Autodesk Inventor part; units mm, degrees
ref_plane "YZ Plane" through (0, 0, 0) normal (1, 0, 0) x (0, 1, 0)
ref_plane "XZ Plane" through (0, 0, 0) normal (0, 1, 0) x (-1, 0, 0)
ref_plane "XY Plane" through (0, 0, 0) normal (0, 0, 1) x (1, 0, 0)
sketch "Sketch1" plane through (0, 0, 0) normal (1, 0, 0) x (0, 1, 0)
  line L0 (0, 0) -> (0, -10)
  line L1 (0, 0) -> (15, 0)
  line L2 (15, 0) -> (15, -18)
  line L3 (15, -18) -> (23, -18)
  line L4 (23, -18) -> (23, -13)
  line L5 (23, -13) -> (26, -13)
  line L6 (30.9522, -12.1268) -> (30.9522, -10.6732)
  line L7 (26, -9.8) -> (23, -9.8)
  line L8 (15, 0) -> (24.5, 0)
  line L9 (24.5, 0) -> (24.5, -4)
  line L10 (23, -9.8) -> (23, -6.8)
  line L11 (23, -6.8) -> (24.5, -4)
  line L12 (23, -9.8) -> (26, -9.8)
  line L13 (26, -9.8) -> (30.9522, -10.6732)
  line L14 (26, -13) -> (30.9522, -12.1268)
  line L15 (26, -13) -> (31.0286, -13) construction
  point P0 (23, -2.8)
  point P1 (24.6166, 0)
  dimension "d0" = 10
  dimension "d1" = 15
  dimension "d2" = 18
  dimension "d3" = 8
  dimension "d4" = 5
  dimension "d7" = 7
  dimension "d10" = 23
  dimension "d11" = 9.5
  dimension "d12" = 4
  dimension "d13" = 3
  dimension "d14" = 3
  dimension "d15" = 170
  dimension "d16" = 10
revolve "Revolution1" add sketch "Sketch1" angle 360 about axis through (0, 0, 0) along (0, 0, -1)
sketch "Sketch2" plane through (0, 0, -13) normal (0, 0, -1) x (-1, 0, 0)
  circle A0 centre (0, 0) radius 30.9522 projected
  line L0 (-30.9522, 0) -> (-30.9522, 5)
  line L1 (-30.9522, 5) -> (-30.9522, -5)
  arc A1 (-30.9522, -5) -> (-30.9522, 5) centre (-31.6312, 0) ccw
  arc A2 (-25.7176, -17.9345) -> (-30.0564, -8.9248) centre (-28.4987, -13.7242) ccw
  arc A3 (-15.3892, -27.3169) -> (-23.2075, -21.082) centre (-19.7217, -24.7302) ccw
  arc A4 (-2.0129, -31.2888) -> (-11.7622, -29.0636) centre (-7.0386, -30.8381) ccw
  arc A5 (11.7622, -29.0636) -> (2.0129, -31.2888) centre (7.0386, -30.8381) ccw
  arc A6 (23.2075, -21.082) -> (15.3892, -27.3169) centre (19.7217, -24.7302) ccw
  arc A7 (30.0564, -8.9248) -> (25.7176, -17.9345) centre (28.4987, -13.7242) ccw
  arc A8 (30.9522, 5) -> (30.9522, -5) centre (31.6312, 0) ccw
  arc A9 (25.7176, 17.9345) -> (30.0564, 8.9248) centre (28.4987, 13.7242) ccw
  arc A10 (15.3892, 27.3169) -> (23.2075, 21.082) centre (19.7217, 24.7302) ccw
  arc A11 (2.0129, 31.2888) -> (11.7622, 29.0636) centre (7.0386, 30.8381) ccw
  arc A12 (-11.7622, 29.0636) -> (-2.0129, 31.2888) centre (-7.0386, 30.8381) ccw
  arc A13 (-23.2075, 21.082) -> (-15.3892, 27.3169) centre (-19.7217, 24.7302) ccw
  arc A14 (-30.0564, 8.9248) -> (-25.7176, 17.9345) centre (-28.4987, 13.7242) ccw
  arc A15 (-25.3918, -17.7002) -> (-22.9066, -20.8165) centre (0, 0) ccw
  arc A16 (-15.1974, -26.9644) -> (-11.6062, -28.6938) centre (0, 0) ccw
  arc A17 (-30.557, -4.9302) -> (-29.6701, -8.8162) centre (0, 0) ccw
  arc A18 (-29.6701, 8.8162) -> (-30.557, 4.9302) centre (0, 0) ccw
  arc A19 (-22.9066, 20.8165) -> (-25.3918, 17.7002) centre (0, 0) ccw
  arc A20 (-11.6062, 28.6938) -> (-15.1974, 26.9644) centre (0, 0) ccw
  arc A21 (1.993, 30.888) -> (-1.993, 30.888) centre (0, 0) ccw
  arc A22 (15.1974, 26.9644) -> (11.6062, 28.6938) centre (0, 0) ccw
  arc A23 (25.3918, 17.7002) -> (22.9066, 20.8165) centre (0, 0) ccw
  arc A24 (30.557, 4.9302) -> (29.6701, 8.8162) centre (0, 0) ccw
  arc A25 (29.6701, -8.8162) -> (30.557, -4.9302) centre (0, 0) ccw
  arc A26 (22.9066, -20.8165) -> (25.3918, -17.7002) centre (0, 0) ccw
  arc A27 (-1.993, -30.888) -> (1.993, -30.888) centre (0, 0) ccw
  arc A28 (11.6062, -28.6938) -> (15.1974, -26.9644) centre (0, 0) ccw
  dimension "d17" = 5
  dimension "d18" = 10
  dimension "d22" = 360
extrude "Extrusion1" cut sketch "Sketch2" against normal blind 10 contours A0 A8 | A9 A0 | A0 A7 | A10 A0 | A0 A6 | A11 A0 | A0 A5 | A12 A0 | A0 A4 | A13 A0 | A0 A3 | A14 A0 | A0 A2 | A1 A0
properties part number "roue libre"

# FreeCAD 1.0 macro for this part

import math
import FreeCAD as App
import Part
import Sketcher
from FreeCAD import Vector
Q = App.Units.Quantity


def add_polygon(sketch, points):
    """Adds a closed chain of lines whose ends are joined by coincident constraints."""
    first, n = sketch.GeometryCount, len(points)
    for a, b in zip(points, points[1:] + points[:1]):
        sketch.addGeometry(Part.LineSegment(App.Vector(*a, 0), App.Vector(*b, 0)), False)
    for i in range(n):
        sketch.addConstraint(Sketcher.Constraint("Coincident", first + i, 2, first + (i + 1) % n, 1))

doc = App.newDocument("Part")
body = doc.addObject("PartDesign::Body", "Body")

sketch1 = body.newObject("Sketcher::SketchObject", "Sketch")
sketch1.AttachmentSupport = (doc.getObject("YZ_Plane"), [""])
sketch1.MapMode = "FlatFace"
add_polygon(sketch1, [(24.5, 0), (15, 0), (15, -18), (23, -18), (23, -13), (26, -13), (31, -12.1), (31, -10.7), (26, -9.8), (23, -9.8), (23, -6.8), (24.5, -4)])
sketch1.addConstraint([
    Sketcher.Constraint("Horizontal", 0),
    Sketcher.Constraint("Vertical", 1),
    Sketcher.Constraint("Horizontal", 2),
    Sketcher.Constraint("Vertical", 3),
    Sketcher.Constraint("Horizontal", 4),
    Sketcher.Constraint("Vertical", 6),
    Sketcher.Constraint("Horizontal", 8),
    Sketcher.Constraint("Vertical", 9),
    Sketcher.Constraint("Vertical", 11),
    Sketcher.Constraint("PointOnObject", 0, 2, -1),
    Sketcher.Constraint("Vertical", 4, 2, 7, 2),
    Sketcher.Constraint("Vertical", 3, 2, 8, 2),
    Sketcher.Constraint("Equal", 8, 9),
    Sketcher.Constraint("Equal", 5, 7),
    Sketcher.Constraint("DistanceX", 2, 1, 2, 2, 8.0),
    Sketcher.Constraint("DistanceX", 4, 1, 4, 2, 3.0),
    Sketcher.Constraint("DistanceY", 1, 2, 1, 1, 18.0),
    Sketcher.Constraint("DistanceY", 3, 1, 3, 2, 5.0),
    Sketcher.Constraint("DistanceY", 11, 1, 11, 2, 4.0),
    Sketcher.Constraint("Angle", 5, Q("10 deg")),
    Sketcher.Constraint("DistanceX", 0, 2, 0, 1, 9.5),
    Sketcher.Constraint("DistanceX", -1, 1, 0, 2, 15.0),
    Sketcher.Constraint("DistanceY", 7, 2, -1, 1, 9.8),
    Sketcher.Constraint("DistanceY", 6, 1, 6, 2, 1.4536),
])
revolution = body.newObject("PartDesign::Revolution", "Revolution")
revolution.Profile = sketch1
revolution.ReferenceAxis = (sketch1, ["V_Axis"])
revolution.Angle = 360

sketch2 = body.newObject("Sketcher::SketchObject", "Sketch001")
sketch2.AttachmentSupport = (doc.getObject("XY_Plane"), [""])
sketch2.MapMode = "FlatFace"
sketch2.AttachmentOffset = App.Placement(Vector(0, 0, -13), App.Rotation())
sketch2.addGeometry([
    Part.ArcOfCircle(Part.Circle(Vector(0, 0, 0), Vector(0, 0, 1), 31), math.radians(170.83), math.radians(189.17)),
    Part.ArcOfCircle(Part.Circle(Vector(-32, 0, 0), Vector(0, 0, 1), 5), math.radians(-78), math.radians(78)),
    Part.ArcOfCircle(Part.Circle(Vector(-28, 14, 0), Vector(0, 0, 1), 5), math.radians(-103), math.radians(52)),
    Part.ArcOfCircle(Part.Circle(Vector(0, 0, 0), Vector(0, 0, 1), 31), math.radians(145.12), math.radians(163.45)),
    Part.ArcOfCircle(Part.Circle(Vector(0, 0, 0), Vector(0, 0, 1), 31), math.radians(-163.45), math.radians(-145.12)),
    Part.ArcOfCircle(Part.Circle(Vector(-28, -14, 0), Vector(0, 0, 1), 5), math.radians(-52), math.radians(103)),
    Part.ArcOfCircle(Part.Circle(Vector(-20, 25, 0), Vector(0, 0, 1), 5), math.radians(-129), math.radians(26)),
    Part.ArcOfCircle(Part.Circle(Vector(0, 0, 0), Vector(0, 0, 1), 31), math.radians(119.41), math.radians(137.74)),
    Part.ArcOfCircle(Part.Circle(Vector(0, 0, 0), Vector(0, 0, 1), 31), math.radians(-137.74), math.radians(-119.41)),
    Part.ArcOfCircle(Part.Circle(Vector(-20, -25, 0), Vector(0, 0, 1), 5), math.radians(-26), math.radians(129)),
    Part.ArcOfCircle(Part.Circle(Vector(-7, 31, 0), Vector(0, 0, 1), 5), math.radians(-155), math.radians(1)),
    Part.ArcOfCircle(Part.Circle(Vector(0, 0, 0), Vector(0, 0, 1), 31), math.radians(93.69), math.radians(112.02)),
    Part.ArcOfCircle(Part.Circle(Vector(0, 0, 0), Vector(0, 0, 1), 31), math.radians(-112.02), math.radians(-93.69)),
    Part.ArcOfCircle(Part.Circle(Vector(-7, -31, 0), Vector(0, 0, 1), 5), math.radians(-1), math.radians(155)),
    Part.ArcOfCircle(Part.Circle(Vector(7, 31, 0), Vector(0, 0, 1), 5), math.radians(179), math.radians(335)),
    Part.ArcOfCircle(Part.Circle(Vector(0, 0, 0), Vector(0, 0, 1), 31), math.radians(67.98), math.radians(86.31)),
    Part.ArcOfCircle(Part.Circle(Vector(0, 0, 0), Vector(0, 0, 1), 31), math.radians(-86.31), math.radians(-67.98)),
    Part.ArcOfCircle(Part.Circle(Vector(7, -31, 0), Vector(0, 0, 1), 5), math.radians(25), math.radians(181)),
    Part.ArcOfCircle(Part.Circle(Vector(20, 25, 0), Vector(0, 0, 1), 5), math.radians(154), math.radians(309)),
    Part.ArcOfCircle(Part.Circle(Vector(0, 0, 0), Vector(0, 0, 1), 31), math.radians(42.26), math.radians(60.59)),
    Part.ArcOfCircle(Part.Circle(Vector(0, 0, 0), Vector(0, 0, 1), 31), math.radians(-60.59), math.radians(-42.26)),
    Part.ArcOfCircle(Part.Circle(Vector(20, -25, 0), Vector(0, 0, 1), 5), math.radians(51), math.radians(206)),
    Part.ArcOfCircle(Part.Circle(Vector(28, 14, 0), Vector(0, 0, 1), 5), math.radians(128), math.radians(283)),
    Part.ArcOfCircle(Part.Circle(Vector(0, 0, 0), Vector(0, 0, 1), 31), math.radians(16.55), math.radians(34.88)),
    Part.ArcOfCircle(Part.Circle(Vector(0, 0, 0), Vector(0, 0, 1), 31), math.radians(-34.88), math.radians(-16.55)),
    Part.ArcOfCircle(Part.Circle(Vector(28, -14, 0), Vector(0, 0, 1), 5), math.radians(77), math.radians(232)),
    Part.ArcOfCircle(Part.Circle(Vector(32, 0, 0), Vector(0, 0, 1), 5), math.radians(102), math.radians(258)),
    Part.ArcOfCircle(Part.Circle(Vector(0, 0, 0), Vector(0, 0, 1), 31), math.radians(-9.17), math.radians(9.17)),
], False)
sketch2.addConstraint([
    Sketcher.Constraint("Coincident", 0, 1, 1, 2),
    Sketcher.Constraint("Coincident", 1, 1, 0, 2),
    Sketcher.Constraint("Coincident", 2, 1, 3, 2),
    Sketcher.Constraint("Coincident", 3, 1, 2, 2),
    Sketcher.Constraint("Coincident", 4, 1, 5, 2),
    Sketcher.Constraint("Coincident", 5, 1, 4, 2),
    Sketcher.Constraint("Coincident", 6, 1, 7, 2),
    Sketcher.Constraint("Coincident", 7, 1, 6, 2),
    Sketcher.Constraint("Coincident", 8, 1, 9, 2),
    Sketcher.Constraint("Coincident", 9, 1, 8, 2),
    Sketcher.Constraint("Coincident", 10, 1, 11, 2),
    Sketcher.Constraint("Coincident", 11, 1, 10, 2),
    Sketcher.Constraint("Coincident", 12, 1, 13, 2),
    Sketcher.Constraint("Coincident", 13, 1, 12, 2),
    Sketcher.Constraint("Coincident", 14, 1, 15, 2),
    Sketcher.Constraint("Coincident", 15, 1, 14, 2),
    Sketcher.Constraint("Coincident", 16, 1, 17, 2),
    Sketcher.Constraint("Coincident", 17, 1, 16, 2),
    Sketcher.Constraint("Coincident", 18, 1, 19, 2),
    Sketcher.Constraint("Coincident", 19, 1, 18, 2),
    Sketcher.Constraint("Coincident", 20, 1, 21, 2),
    Sketcher.Constraint("Coincident", 21, 1, 20, 2),
    Sketcher.Constraint("Coincident", 22, 1, 23, 2),
    Sketcher.Constraint("Coincident", 23, 1, 22, 2),
    Sketcher.Constraint("Coincident", 24, 1, 25, 2),
    Sketcher.Constraint("Coincident", 25, 1, 24, 2),
    Sketcher.Constraint("Coincident", 26, 1, 27, 2),
    Sketcher.Constraint("Coincident", 27, 1, 26, 2),
    Sketcher.Constraint("Coincident", 0, 3, -1, 1),
    Sketcher.Constraint("Coincident", 3, 3, -1, 1),
    Sketcher.Constraint("Coincident", 4, 3, -1, 1),
    Sketcher.Constraint("Coincident", 7, 3, -1, 1),
    Sketcher.Constraint("Coincident", 8, 3, -1, 1),
    Sketcher.Constraint("Coincident", 11, 3, -1, 1),
    Sketcher.Constraint("Coincident", 12, 3, -1, 1),
    Sketcher.Constraint("Coincident", 15, 3, -1, 1),
    Sketcher.Constraint("Coincident", 16, 3, -1, 1),
    Sketcher.Constraint("Coincident", 19, 3, -1, 1),
    Sketcher.Constraint("Coincident", 20, 3, -1, 1),
    Sketcher.Constraint("Coincident", 23, 3, -1, 1),
    Sketcher.Constraint("Coincident", 24, 3, -1, 1),
    Sketcher.Constraint("Coincident", 27, 3, -1, 1),
    Sketcher.Constraint("Equal", 1, 2),
    Sketcher.Constraint("Equal", 0, 3),
    Sketcher.Constraint("Equal", 3, 4),
    Sketcher.Constraint("Equal", 2, 5),
    Sketcher.Constraint("Equal", 5, 6),
    Sketcher.Constraint("Equal", 4, 7),
    Sketcher.Constraint("Equal", 7, 8),
    Sketcher.Constraint("Equal", 6, 9),
    Sketcher.Constraint("Equal", 9, 10),
    Sketcher.Constraint("Equal", 8, 11),
    Sketcher.Constraint("Equal", 11, 12),
    Sketcher.Constraint("Equal", 10, 13),
    Sketcher.Constraint("Equal", 13, 14),
    Sketcher.Constraint("Equal", 12, 15),
    Sketcher.Constraint("Equal", 15, 16),
    Sketcher.Constraint("Equal", 14, 17),
    Sketcher.Constraint("Equal", 17, 18),
    Sketcher.Constraint("Equal", 16, 19),
    Sketcher.Constraint("Equal", 19, 20),
    Sketcher.Constraint("Equal", 18, 21),
    Sketcher.Constraint("Equal", 21, 22),
    Sketcher.Constraint("Equal", 20, 23),
    Sketcher.Constraint("Equal", 23, 24),
    Sketcher.Constraint("Equal", 22, 25),
    Sketcher.Constraint("Equal", 25, 26),
    Sketcher.Constraint("Equal", 24, 27),
    Sketcher.Constraint("Symmetric", 13, 3, 14, 3, -1, 1),
    Sketcher.Constraint("Symmetric", 10, 3, 17, 3, -1, 1),
    Sketcher.Constraint("Symmetric", 9, 3, 18, 3, -1, 1),
    Sketcher.Constraint("Symmetric", 6, 3, 21, 3, -1, 1),
    Sketcher.Constraint("Symmetric", 5, 3, 22, 3, -1, 1),
    Sketcher.Constraint("Symmetric", 2, 3, 25, 3, -1, 1),
    Sketcher.Constraint("Symmetric", 1, 3, 26, 3, -1, 1),
    Sketcher.Constraint("Symmetric", 10, 3, 14, 3, -2),
    Sketcher.Constraint("Symmetric", 6, 3, 18, 3, -2),
    Sketcher.Constraint("Symmetric", 2, 3, 22, 3, -2),
    Sketcher.Constraint("PointOnObject", 1, 3, -1),
    Sketcher.Constraint("Radius", 1, 5.046),
    Sketcher.Constraint("Radius", 0, 30.9522),
    Sketcher.Constraint("DistanceY", 0, 1, 6, 3, 19.8),
    Sketcher.Constraint("DistanceX", 2, 1, -1, 1, 29.67),
    Sketcher.Constraint("DistanceX", 2, 3, 10, 3, 21.46),
    Sketcher.Constraint("DistanceX", 3, 1, 6, 3, 5.67),
    Sketcher.Constraint("DistanceY", 3, 1, 6, 3, 7.03),
    Sketcher.Constraint("DistanceY", 13, 1, 13, 3, 0.05),
    Sketcher.Constraint("DistanceY", -1, 1, 10, 3, 30.838),
])
pocket1 = body.newObject("PartDesign::Pocket", "Pocket")
pocket1.Profile = sketch2
pocket1.Length = 10
pocket1.Reversed = True

doc.recompute()
